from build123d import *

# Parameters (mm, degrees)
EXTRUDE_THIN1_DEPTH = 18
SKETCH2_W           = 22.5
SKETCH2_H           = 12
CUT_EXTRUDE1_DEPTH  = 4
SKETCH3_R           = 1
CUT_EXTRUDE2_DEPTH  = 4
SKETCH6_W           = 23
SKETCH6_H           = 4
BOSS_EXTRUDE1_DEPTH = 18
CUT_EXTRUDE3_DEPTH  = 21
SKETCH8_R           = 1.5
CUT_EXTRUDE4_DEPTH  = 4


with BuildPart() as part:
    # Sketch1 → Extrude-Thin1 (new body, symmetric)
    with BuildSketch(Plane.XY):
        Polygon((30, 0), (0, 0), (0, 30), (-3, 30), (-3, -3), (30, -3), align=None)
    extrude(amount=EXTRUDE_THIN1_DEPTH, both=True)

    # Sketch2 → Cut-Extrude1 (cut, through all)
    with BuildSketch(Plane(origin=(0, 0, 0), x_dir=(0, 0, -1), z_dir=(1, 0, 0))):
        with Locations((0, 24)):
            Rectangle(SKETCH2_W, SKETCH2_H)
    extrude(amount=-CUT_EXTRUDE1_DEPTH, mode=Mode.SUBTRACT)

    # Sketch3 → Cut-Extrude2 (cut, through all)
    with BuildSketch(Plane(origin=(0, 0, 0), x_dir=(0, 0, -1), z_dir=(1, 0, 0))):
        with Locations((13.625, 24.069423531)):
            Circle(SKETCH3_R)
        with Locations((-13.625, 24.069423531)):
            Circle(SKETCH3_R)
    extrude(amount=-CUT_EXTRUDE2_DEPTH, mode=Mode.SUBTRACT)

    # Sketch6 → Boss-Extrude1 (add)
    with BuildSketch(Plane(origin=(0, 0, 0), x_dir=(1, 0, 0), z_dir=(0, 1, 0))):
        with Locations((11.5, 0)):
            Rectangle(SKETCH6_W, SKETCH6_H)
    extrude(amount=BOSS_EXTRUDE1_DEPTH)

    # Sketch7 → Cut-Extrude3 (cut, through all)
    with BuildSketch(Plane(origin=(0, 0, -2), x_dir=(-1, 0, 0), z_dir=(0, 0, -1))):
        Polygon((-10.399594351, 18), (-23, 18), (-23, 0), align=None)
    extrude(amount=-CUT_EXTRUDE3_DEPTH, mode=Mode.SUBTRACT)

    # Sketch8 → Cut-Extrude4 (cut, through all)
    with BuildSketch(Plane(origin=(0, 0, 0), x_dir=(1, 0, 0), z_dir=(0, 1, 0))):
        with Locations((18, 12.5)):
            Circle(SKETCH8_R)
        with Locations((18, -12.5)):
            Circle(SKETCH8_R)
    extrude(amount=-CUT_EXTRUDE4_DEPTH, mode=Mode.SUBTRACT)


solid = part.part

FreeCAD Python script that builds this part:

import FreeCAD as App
import Part
import Sketcher
Q = App.Units.Quantity

doc = App.newDocument("Part")
body = doc.addObject("PartDesign::Body", "Body")

sketch1 = body.newObject("Sketcher::SketchObject", "Sketch")
sketch1.AttachmentSupport = (doc.getObject("XY_Plane"), [""])
sketch1.MapMode = "FlatFace"
sketch1.addGeometry(Part.LineSegment(App.Vector(30, 0, 0), App.Vector(0, 0, 0)), False)
sketch1.addGeometry(Part.LineSegment(App.Vector(0, 0, 0), App.Vector(0, 30, 0)), False)
sketch1.addGeometry(Part.LineSegment(App.Vector(0, 30, 0), App.Vector(-3, 30, 0)), False)
sketch1.addGeometry(Part.LineSegment(App.Vector(-3, 30, 0), App.Vector(-3, -3, 0)), False)
sketch1.addGeometry(Part.LineSegment(App.Vector(-3, -3, 0), App.Vector(30, -3, 0)), False)
sketch1.addGeometry(Part.LineSegment(App.Vector(30, -3, 0), App.Vector(30, 0, 0)), False)
sketch1.addConstraint(Sketcher.Constraint("Coincident", 0, 2, 1, 1))
sketch1.addConstraint(Sketcher.Constraint("Coincident", 1, 2, 2, 1))
sketch1.addConstraint(Sketcher.Constraint("Coincident", 2, 2, 3, 1))
sketch1.addConstraint(Sketcher.Constraint("Coincident", 3, 2, 4, 1))
sketch1.addConstraint(Sketcher.Constraint("Coincident", 4, 2, 5, 1))
sketch1.addConstraint(Sketcher.Constraint("Coincident", 5, 2, 0, 1))
sketch1.addConstraint(Sketcher.Constraint("Horizontal", 0))
sketch1.addConstraint(Sketcher.Constraint("Vertical", 1))
sketch1.addConstraint(Sketcher.Constraint("Horizontal", 2))
sketch1.addConstraint(Sketcher.Constraint("Vertical", 3))
sketch1.addConstraint(Sketcher.Constraint("Horizontal", 4))
sketch1.addConstraint(Sketcher.Constraint("Vertical", 5))
sketch1.addConstraint(Sketcher.Constraint("Coincident", 0, 2, -1, 1))
sketch1.addConstraint(Sketcher.Constraint("Equal", 0, 1))
sketch1.addConstraint(Sketcher.Constraint("Equal", 4, 3))
sketch1.addConstraint(Sketcher.Constraint("DistanceX", 0, 2, 0, 1, Q("30 mm")))
sketch1.addConstraint(Sketcher.Constraint("DistanceX", 2, 2, 2, 1, Q("3 mm")))
pad1 = body.newObject("PartDesign::Pad", "Pad")
pad1.Profile = sketch1
pad1.Length = 36
pad1.Midplane = True

sketch2 = body.newObject("Sketcher::SketchObject", "Sketch001")
sketch2.AttachmentSupport = (doc.getObject("YZ_Plane"), [""])
sketch2.MapMode = "FlatFace"
sketch2.addGeometry(Part.LineSegment(App.Vector(30, 11, 0), App.Vector(18, 11, 0)), False)
sketch2.addGeometry(Part.LineSegment(App.Vector(18, 11, 0), App.Vector(18, -11, 0)), False)
sketch2.addGeometry(Part.LineSegment(App.Vector(18, -11, 0), App.Vector(30, -11, 0)), False)
sketch2.addGeometry(Part.LineSegment(App.Vector(30, -11, 0), App.Vector(30, 11, 0)), False)
sketch2.addConstraint(Sketcher.Constraint("Coincident", 0, 2, 1, 1))
sketch2.addConstraint(Sketcher.Constraint("Coincident", 1, 2, 2, 1))
sketch2.addConstraint(Sketcher.Constraint("Coincident", 2, 2, 3, 1))
sketch2.addConstraint(Sketcher.Constraint("Coincident", 3, 2, 0, 1))
sketch2.addConstraint(Sketcher.Constraint("Horizontal", 0))
sketch2.addConstraint(Sketcher.Constraint("Vertical", 1))
sketch2.addConstraint(Sketcher.Constraint("Horizontal", 2))
sketch2.addConstraint(Sketcher.Constraint("Vertical", 3))
sketch2.addConstraint(Sketcher.Constraint("DistanceX", 0, 2, 0, 1, Q("12 mm")))
sketch2.addConstraint(Sketcher.Constraint("DistanceY", 1, 2, 1, 1, Q("22.5 mm")))
sketch2.addConstraint(Sketcher.Constraint("DistanceX", -1, 1, 0, 2, Q("18 mm")))
sketch2.addConstraint(Sketcher.Constraint("DistanceY", -1, 1, 0, 2, Q("11.25 mm")))
pocket1 = body.newObject("PartDesign::Pocket", "Pocket")
pocket1.Profile = sketch2
pocket1.Type = "ThroughAll"

sketch3 = body.newObject("Sketcher::SketchObject", "Sketch002")
sketch3.AttachmentSupport = (doc.getObject("YZ_Plane"), [""])
sketch3.MapMode = "FlatFace"
sketch3.addGeometry(Part.Circle(App.Vector(24.1, -13.6, 0), App.Vector(0, 0, 1), 1), False)
sketch3.addGeometry(Part.Circle(App.Vector(24.1, 13.6, 0), App.Vector(0, 0, 1), 1), False)
sketch3.addConstraint(Sketcher.Constraint("Equal", 0, 1))
sketch3.addConstraint(Sketcher.Constraint("Symmetric", 0, 3, 1, 3, -1))
sketch3.addConstraint(Sketcher.Constraint("Diameter", 0, Q("2 mm")))
sketch3.addConstraint(Sketcher.Constraint("DistanceY", 0, 3, 1, 3, Q("27.25 mm")))
sketch3.addConstraint(Sketcher.Constraint("DistanceX", -1, 1, 0, 3, Q("24.069424 mm")))
pocket2 = body.newObject("PartDesign::Pocket", "Pocket001")
pocket2.Profile = sketch3
pocket2.Type = "ThroughAll"

sketch4 = body.newObject("Sketcher::SketchObject", "Sketch003")
sketch4.AttachmentSupport = (doc.getObject("XZ_Plane"), [""])
sketch4.MapMode = "FlatFace"
sketch4.addGeometry(Part.LineSegment(App.Vector(0, -2, 0), App.Vector(0, 2, 0)), False)
sketch4.addGeometry(Part.LineSegment(App.Vector(0, 2, 0), App.Vector(23, 2, 0)), False)
sketch4.addGeometry(Part.LineSegment(App.Vector(23, 2, 0), App.Vector(23, -2, 0)), False)
sketch4.addGeometry(Part.LineSegment(App.Vector(23, -2, 0), App.Vector(0, -2, 0)), False)
sketch4.addConstraint(Sketcher.Constraint("Coincident", 0, 2, 1, 1))
sketch4.addConstraint(Sketcher.Constraint("Coincident", 1, 2, 2, 1))
sketch4.addConstraint(Sketcher.Constraint("Coincident", 2, 2, 3, 1))
sketch4.addConstraint(Sketcher.Constraint("Coincident", 3, 2, 0, 1))
sketch4.addConstraint(Sketcher.Constraint("Vertical", 0))
sketch4.addConstraint(Sketcher.Constraint("Horizontal", 1))
sketch4.addConstraint(Sketcher.Constraint("Vertical", 2))
sketch4.addConstraint(Sketcher.Constraint("Horizontal", 3))
sketch4.addConstraint(Sketcher.Constraint("Symmetric", 0, 2, 3, 2, -1, 1))
sketch4.addConstraint(Sketcher.Constraint("DistanceX", 1, 1, 1, 2, Q("23 mm")))
sketch4.addConstraint(Sketcher.Constraint("DistanceY", 0, 1, 0, 2, Q("4 mm")))
pad2 = body.newObject("PartDesign::Pad", "Pad001")
pad2.Profile = sketch4
pad2.Length = 18
pad2.Reversed = True

sketch5 = body.newObject("Sketcher::SketchObject", "Sketch004")
sketch5.AttachmentSupport = (doc.getObject("XY_Plane"), [""])
sketch5.MapMode = "FlatFace"
sketch5.AttachmentOffset = App.Placement(App.Vector(0, 0, -2), App.Rotation())
sketch5.addGeometry(Part.LineSegment(App.Vector(10, 18, 0), App.Vector(23, 18, 0)), False)
sketch5.addGeometry(Part.LineSegment(App.Vector(23, 18, 0), App.Vector(23, 0, 0)), False)
sketch5.addGeometry(Part.LineSegment(App.Vector(23, 0, 0), App.Vector(10, 18, 0)), False)
sketch5.addConstraint(Sketcher.Constraint("Coincident", 0, 2, 1, 1))
sketch5.addConstraint(Sketcher.Constraint("Coincident", 1, 2, 2, 1))
sketch5.addConstraint(Sketcher.Constraint("Coincident", 2, 2, 0, 1))
sketch5.addConstraint(Sketcher.Constraint("Horizontal", 0))
sketch5.addConstraint(Sketcher.Constraint("Vertical", 1))
sketch5.addConstraint(Sketcher.Constraint("PointOnObject", 1, 2, -1))
sketch5.addConstraint(Sketcher.Constraint("DistanceY", 1, 2, 1, 1, Q("18 mm")))
sketch5.addConstraint(Sketcher.Constraint("DistanceX", -1, 1, 0, 2, Q("23 mm")))
sketch5.addConstraint(Sketcher.Constraint("DistanceX", 0, 1, 0, 2, Q("12.600406 mm")))
pocket3 = body.newObject("PartDesign::Pocket", "Pocket002")
pocket3.Profile = sketch5
pocket3.Type = "ThroughAll"
pocket3.Reversed = True

sketch6 = body.newObject("Sketcher::SketchObject", "Sketch005")
sketch6.AttachmentSupport = (doc.getObject("XZ_Plane"), [""])
sketch6.MapMode = "FlatFace"
sketch6.addGeometry(Part.Circle(App.Vector(18, -12.5, 0), App.Vector(0, 0, 1), 1.5), False)
sketch6.addGeometry(Part.Circle(App.Vector(18, 12.5, 0), App.Vector(0, 0, 1), 1.5), False)
sketch6.addConstraint(Sketcher.Constraint("Equal", 0, 1))
sketch6.addConstraint(Sketcher.Constraint("Symmetric", 0, 3, 1, 3, -1))
sketch6.addConstraint(Sketcher.Constraint("Diameter", 0, Q("3 mm")))
sketch6.addConstraint(Sketcher.Constraint("DistanceX", -1, 1, 0, 3, Q("18 mm")))
sketch6.addConstraint(Sketcher.Constraint("DistanceY", 0, 3, 1, 3, Q("25 mm")))
pocket4 = body.newObject("PartDesign::Pocket", "Pocket003")
pocket4.Profile = sketch6
pocket4.Type = "ThroughAll"
pocket4.Reversed = True

doc.recompute()
